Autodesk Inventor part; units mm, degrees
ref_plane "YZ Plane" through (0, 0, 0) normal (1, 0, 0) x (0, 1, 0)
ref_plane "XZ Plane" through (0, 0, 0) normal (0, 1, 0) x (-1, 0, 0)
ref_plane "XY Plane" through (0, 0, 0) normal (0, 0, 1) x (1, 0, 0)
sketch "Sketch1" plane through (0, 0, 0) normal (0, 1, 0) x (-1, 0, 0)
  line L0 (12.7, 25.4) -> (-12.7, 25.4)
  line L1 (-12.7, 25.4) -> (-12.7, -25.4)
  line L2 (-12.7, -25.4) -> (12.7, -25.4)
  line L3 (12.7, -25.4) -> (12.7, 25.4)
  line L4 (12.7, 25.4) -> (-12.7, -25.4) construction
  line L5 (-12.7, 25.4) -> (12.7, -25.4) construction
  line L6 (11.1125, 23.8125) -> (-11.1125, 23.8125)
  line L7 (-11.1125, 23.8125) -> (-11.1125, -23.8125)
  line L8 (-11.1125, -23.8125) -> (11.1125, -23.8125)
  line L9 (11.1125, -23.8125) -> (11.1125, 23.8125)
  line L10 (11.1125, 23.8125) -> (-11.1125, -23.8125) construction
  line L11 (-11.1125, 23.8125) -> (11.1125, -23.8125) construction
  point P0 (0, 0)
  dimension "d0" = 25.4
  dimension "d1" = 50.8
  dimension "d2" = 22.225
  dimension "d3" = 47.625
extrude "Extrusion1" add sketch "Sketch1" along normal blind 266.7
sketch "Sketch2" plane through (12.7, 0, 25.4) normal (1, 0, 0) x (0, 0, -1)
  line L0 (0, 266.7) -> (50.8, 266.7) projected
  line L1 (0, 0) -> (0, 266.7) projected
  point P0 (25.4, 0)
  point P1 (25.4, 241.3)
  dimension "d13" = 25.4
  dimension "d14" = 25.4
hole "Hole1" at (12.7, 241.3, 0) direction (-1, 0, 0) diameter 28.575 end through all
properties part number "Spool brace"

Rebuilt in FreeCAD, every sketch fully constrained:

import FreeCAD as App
import Part
import Sketcher

V = App.Vector
Q = App.Units.Quantity


def add_polygon(sketch, points):
    """Adds a closed chain of lines whose ends are joined by coincident constraints."""
    first, n = sketch.GeometryCount, len(points)
    for a, b in zip(points, points[1:] + points[:1]):
        sketch.addGeometry(Part.LineSegment(App.Vector(*a, 0), App.Vector(*b, 0)), False)
    for i in range(n):
        sketch.addConstraint(Sketcher.Constraint("Coincident", first + i, 2, first + (i + 1) % n, 1))

doc = App.newDocument("Part")
body = doc.addObject("PartDesign::Body", "Body")

# Sketch on XZ plane
sketch1 = body.newObject("Sketcher::SketchObject", "Sketch")
sketch1.AttachmentSupport = (doc.getObject("XZ_Plane"), [""])
sketch1.MapMode = "FlatFace"
add_polygon(sketch1, [(-13, -25), (-13, 25), (13, 25), (13, -25)])  # lines 0-3
add_polygon(sketch1, [(11, 24), (-11, 24), (-11, -24), (11, -24)])  # lines 4-7
sketch1.addConstraint(Sketcher.Constraint("Vertical", 0))
sketch1.addConstraint(Sketcher.Constraint("Horizontal", 1))
sketch1.addConstraint(Sketcher.Constraint("Vertical", 2))
sketch1.addConstraint(Sketcher.Constraint("Horizontal", 3))
sketch1.addConstraint(Sketcher.Constraint("Horizontal", 4))
sketch1.addConstraint(Sketcher.Constraint("Vertical", 5))
sketch1.addConstraint(Sketcher.Constraint("Horizontal", 6))
sketch1.addConstraint(Sketcher.Constraint("Vertical", 7))
sketch1.addConstraint(Sketcher.Constraint("Symmetric", 0, 2, 2, 2, -1, 1))
sketch1.addConstraint(Sketcher.Constraint("Symmetric", 4, 2, 6, 2, -1, 1))
sketch1.addConstraint(Sketcher.Constraint("DistanceX", 1, 1, 1, 2, Q("1 in")))
sketch1.addConstraint(Sketcher.Constraint("DistanceY", 0, 1, 0, 2, Q("2 in")))
sketch1.addConstraint(Sketcher.Constraint("DistanceX", 4, 2, 4, 1, Q("0.875 in")))
sketch1.addConstraint(Sketcher.Constraint("DistanceY", 5, 2, 5, 1, Q("1.875 in")))
pad1 = body.newObject("PartDesign::Pad", "Pad")
pad1.Profile = sketch1
pad1.Length = Q("10.5 in")
pad1.Reversed = True

# Sketch on YZ plane
sketch2 = body.newObject("Sketcher::SketchObject", "Sketch001")
sketch2.AttachmentSupport = (doc.getObject("YZ_Plane"), [""])
sketch2.MapMode = "FlatFace"
sketch2.AttachmentOffset = App.Placement(V(0, 0, 0.5 * 25.4), App.Rotation())
sketch2.addGeometry(Part.Circle(V(241, 0, 0), V(0, 0, 1), 14), False)
sketch2.addConstraint(Sketcher.Constraint("PointOnObject", 0, 3, -1))
sketch2.addConstraint(Sketcher.Constraint("Diameter", 0, Q("1.125 in")))
sketch2.addConstraint(Sketcher.Constraint("DistanceX", -1, 1, 0, 3, Q("9.5 in")))
doc.recompute()
hole = body.newObject("PartDesign::Hole", "Hole")
hole.Profile = sketch2
hole.ThreadType = "None"
hole.Diameter = Q("1.125 in")
hole.DepthType = "ThroughAll"

doc.recompute()
